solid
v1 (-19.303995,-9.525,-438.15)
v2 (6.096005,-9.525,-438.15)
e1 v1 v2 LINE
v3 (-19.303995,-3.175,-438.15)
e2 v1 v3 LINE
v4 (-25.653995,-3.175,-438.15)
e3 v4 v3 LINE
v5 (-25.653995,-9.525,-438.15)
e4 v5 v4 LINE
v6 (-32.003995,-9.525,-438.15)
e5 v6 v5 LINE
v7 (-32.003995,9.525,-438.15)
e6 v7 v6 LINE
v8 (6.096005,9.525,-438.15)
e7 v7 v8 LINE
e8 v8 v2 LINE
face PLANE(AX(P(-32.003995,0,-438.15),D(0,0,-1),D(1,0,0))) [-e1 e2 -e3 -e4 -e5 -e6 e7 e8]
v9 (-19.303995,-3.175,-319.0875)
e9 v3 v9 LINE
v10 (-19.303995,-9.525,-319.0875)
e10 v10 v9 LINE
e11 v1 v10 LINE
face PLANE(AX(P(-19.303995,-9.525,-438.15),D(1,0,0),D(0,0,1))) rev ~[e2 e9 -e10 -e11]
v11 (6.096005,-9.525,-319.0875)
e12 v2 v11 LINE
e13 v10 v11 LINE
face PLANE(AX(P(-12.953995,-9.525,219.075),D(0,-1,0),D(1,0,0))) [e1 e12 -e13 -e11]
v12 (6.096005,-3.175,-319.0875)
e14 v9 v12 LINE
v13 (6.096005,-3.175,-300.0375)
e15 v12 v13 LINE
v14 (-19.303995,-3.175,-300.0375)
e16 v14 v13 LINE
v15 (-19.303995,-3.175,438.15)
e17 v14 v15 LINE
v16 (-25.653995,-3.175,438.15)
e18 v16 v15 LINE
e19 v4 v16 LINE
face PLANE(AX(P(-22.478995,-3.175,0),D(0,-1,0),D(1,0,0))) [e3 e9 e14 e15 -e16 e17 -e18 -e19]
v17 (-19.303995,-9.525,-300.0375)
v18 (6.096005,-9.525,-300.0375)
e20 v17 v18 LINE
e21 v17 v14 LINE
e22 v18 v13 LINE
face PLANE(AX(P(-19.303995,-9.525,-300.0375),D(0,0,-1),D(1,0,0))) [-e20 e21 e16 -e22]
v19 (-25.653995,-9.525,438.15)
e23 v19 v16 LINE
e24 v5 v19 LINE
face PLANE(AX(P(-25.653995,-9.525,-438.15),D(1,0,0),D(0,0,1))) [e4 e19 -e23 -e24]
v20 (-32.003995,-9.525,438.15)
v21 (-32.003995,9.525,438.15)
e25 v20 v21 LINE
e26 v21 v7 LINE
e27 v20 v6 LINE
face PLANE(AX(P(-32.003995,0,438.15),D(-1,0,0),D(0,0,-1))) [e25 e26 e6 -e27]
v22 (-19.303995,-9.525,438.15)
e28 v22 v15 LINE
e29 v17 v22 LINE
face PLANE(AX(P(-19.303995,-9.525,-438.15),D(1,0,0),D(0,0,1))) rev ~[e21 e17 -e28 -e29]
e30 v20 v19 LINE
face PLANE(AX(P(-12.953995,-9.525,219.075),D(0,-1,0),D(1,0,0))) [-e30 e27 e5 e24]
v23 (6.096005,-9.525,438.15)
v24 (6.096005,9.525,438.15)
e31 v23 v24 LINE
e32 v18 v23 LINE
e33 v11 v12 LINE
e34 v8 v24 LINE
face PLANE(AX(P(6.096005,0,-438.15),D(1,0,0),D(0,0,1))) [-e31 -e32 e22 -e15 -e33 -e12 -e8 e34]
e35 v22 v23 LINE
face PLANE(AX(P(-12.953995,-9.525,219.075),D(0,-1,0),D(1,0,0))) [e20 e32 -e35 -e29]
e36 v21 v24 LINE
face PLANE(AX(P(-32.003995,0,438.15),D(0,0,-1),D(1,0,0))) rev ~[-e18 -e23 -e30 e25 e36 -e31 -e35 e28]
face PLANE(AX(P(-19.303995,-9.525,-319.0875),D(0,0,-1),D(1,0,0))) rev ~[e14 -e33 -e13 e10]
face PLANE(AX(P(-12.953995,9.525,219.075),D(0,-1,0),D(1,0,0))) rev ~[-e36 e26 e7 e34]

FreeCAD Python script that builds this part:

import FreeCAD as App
import Part
import Sketcher
from FreeCAD import Vector
Q = App.Units.Quantity


def add_polygon(sketch, points):
    """Adds a closed chain of lines whose ends are joined by coincident constraints."""
    first, n = sketch.GeometryCount, len(points)
    for a, b in zip(points, points[1:] + points[:1]):
        sketch.addGeometry(Part.LineSegment(App.Vector(*a, 0), App.Vector(*b, 0)), False)
    for i in range(n):
        sketch.addConstraint(Sketcher.Constraint("Coincident", first + i, 2, first + (i + 1) % n, 1))

doc = App.newDocument("Part")
params = doc.addObject("Spreadsheet::Sheet", "Params")
for row, (alias, value) in enumerate([
    ("sketch1_width", "1.5 in"),
    ("sketch1_height", "34.5 in"),
    ("pad1_length", "0.75 in"),
    ("sketch2_height", "34.5 in"),
    ("sketch2_width", "0.25 in"),
    ("pocket1_length", "0.25 in"),
    ("sketch3_width", "1 in"),
    ("sketch3_height", "0.75 in"),
    ("pocket2_length", "0.25 in"),
], start=1):
    params.set(f"A{row}", alias)
    params.set(f"B{row}", "=" + value)
    params.setAlias(f"B{row}", alias)

body = doc.addObject("PartDesign::Body", "Body")

sketch1 = doc.addObject("Sketcher::SketchObject", "Sketch")
body.addObject(sketch1)
sketch1.AttachmentSupport = (doc.XZ_Plane, [""])
sketch1.MapMode = "FlatFace"
add_polygon(sketch1, [(-32, 438), (-32, -438), (6, -438), (6, 438)])
sketch1.addConstraint(Sketcher.Constraint("Vertical", 0))
sketch1.addConstraint(Sketcher.Constraint("Horizontal", 1))
sketch1.addConstraint(Sketcher.Constraint("Vertical", 2))
sketch1.addConstraint(Sketcher.Constraint("Horizontal", 3))
sketch1.addConstraint(Sketcher.Constraint("DistanceX", 1, 1, 1, 2, Q("1.5 in")))
sketch1.addConstraint(Sketcher.Constraint("DistanceY", 0, 2, 0, 1, Q("34.5 in")))
sketch1.addConstraint(Sketcher.Constraint("DistanceX", 0, 2, -1, 1, Q("1.2599998 in")))
sketch1.addConstraint(Sketcher.Constraint("DistanceY", 0, 2, -1, 1, Q("17.25 in")))
sketch1.setExpression("Constraints[8]", "Params.sketch1_width")
sketch1.setExpression("Constraints[9]", "Params.sketch1_height")
pad1 = doc.addObject("PartDesign::Pad", "Pad")
body.addObject(pad1)
pad1.Profile = sketch1
pad1.setExpression("Length", "Params.pad1_length")
pad1.Midplane = True

sketch2 = doc.addObject("Sketcher::SketchObject", "Sketch001")
body.addObject(sketch2)
sketch2.AttachmentSupport = (doc.XZ_Plane, [""])
sketch2.MapMode = "FlatFace"
sketch2.AttachmentOffset = App.Placement(Vector(0, 0, 0.375 * 25.4), App.Rotation())
add_polygon(sketch2, [(-26, 438), (-26, -438), (-19, -438), (-19, 438)])
sketch2.addConstraint(Sketcher.Constraint("Vertical", 0))
sketch2.addConstraint(Sketcher.Constraint("Horizontal", 1))
sketch2.addConstraint(Sketcher.Constraint("Vertical", 2))
sketch2.addConstraint(Sketcher.Constraint("Horizontal", 3))
sketch2.addConstraint(Sketcher.Constraint("DistanceY", 0, 2, 0, 1, Q("34.5 in")))
sketch2.addConstraint(Sketcher.Constraint("DistanceX", 1, 1, 1, 2, Q("0.25 in")))
sketch2.addConstraint(Sketcher.Constraint("DistanceX", 0, 2, -1, 1, Q("1.0099998 in")))
sketch2.addConstraint(Sketcher.Constraint("DistanceY", 0, 2, -1, 1, Q("17.25 in")))
sketch2.setExpression("Constraints[8]", "Params.sketch2_height")
sketch2.setExpression("Constraints[9]", "Params.sketch2_width")
pocket1 = doc.addObject("PartDesign::Pocket", "Pocket")
body.addObject(pocket1)
pocket1.Profile = sketch2
pocket1.setExpression("Length", "Params.pocket1_length")

sketch3 = doc.addObject("Sketcher::SketchObject", "Sketch002")
body.addObject(sketch3)
sketch3.AttachmentSupport = (doc.XZ_Plane, [""])
sketch3.MapMode = "FlatFace"
sketch3.AttachmentOffset = App.Placement(Vector(0, 0, 0.375 * 25.4), App.Rotation())
add_polygon(sketch3, [(-19, -300), (-19, -319), (6, -319), (6, -300)])
sketch3.addConstraint(Sketcher.Constraint("Vertical", 0))
sketch3.addConstraint(Sketcher.Constraint("Horizontal", 1))
sketch3.addConstraint(Sketcher.Constraint("Vertical", 2))
sketch3.addConstraint(Sketcher.Constraint("Horizontal", 3))
sketch3.addConstraint(Sketcher.Constraint("DistanceX", 1, 1, 1, 2, Q("1 in")))
sketch3.addConstraint(Sketcher.Constraint("DistanceY", 0, 2, 0, 1, Q("0.75 in")))
sketch3.addConstraint(Sketcher.Constraint("DistanceX", 0, 2, -1, 1, Q("0.7599998 in")))
sketch3.addConstraint(Sketcher.Constraint("DistanceY", 0, 2, -1, 1, Q("12.5625 in")))
sketch3.setExpression("Constraints[8]", "Params.sketch3_width")
sketch3.setExpression("Constraints[9]", "Params.sketch3_height")
pocket2 = doc.addObject("PartDesign::Pocket", "Pocket001")
body.addObject(pocket2)
pocket2.Profile = sketch3
pocket2.setExpression("Length", "Params.pocket2_length")

doc.recompute()
